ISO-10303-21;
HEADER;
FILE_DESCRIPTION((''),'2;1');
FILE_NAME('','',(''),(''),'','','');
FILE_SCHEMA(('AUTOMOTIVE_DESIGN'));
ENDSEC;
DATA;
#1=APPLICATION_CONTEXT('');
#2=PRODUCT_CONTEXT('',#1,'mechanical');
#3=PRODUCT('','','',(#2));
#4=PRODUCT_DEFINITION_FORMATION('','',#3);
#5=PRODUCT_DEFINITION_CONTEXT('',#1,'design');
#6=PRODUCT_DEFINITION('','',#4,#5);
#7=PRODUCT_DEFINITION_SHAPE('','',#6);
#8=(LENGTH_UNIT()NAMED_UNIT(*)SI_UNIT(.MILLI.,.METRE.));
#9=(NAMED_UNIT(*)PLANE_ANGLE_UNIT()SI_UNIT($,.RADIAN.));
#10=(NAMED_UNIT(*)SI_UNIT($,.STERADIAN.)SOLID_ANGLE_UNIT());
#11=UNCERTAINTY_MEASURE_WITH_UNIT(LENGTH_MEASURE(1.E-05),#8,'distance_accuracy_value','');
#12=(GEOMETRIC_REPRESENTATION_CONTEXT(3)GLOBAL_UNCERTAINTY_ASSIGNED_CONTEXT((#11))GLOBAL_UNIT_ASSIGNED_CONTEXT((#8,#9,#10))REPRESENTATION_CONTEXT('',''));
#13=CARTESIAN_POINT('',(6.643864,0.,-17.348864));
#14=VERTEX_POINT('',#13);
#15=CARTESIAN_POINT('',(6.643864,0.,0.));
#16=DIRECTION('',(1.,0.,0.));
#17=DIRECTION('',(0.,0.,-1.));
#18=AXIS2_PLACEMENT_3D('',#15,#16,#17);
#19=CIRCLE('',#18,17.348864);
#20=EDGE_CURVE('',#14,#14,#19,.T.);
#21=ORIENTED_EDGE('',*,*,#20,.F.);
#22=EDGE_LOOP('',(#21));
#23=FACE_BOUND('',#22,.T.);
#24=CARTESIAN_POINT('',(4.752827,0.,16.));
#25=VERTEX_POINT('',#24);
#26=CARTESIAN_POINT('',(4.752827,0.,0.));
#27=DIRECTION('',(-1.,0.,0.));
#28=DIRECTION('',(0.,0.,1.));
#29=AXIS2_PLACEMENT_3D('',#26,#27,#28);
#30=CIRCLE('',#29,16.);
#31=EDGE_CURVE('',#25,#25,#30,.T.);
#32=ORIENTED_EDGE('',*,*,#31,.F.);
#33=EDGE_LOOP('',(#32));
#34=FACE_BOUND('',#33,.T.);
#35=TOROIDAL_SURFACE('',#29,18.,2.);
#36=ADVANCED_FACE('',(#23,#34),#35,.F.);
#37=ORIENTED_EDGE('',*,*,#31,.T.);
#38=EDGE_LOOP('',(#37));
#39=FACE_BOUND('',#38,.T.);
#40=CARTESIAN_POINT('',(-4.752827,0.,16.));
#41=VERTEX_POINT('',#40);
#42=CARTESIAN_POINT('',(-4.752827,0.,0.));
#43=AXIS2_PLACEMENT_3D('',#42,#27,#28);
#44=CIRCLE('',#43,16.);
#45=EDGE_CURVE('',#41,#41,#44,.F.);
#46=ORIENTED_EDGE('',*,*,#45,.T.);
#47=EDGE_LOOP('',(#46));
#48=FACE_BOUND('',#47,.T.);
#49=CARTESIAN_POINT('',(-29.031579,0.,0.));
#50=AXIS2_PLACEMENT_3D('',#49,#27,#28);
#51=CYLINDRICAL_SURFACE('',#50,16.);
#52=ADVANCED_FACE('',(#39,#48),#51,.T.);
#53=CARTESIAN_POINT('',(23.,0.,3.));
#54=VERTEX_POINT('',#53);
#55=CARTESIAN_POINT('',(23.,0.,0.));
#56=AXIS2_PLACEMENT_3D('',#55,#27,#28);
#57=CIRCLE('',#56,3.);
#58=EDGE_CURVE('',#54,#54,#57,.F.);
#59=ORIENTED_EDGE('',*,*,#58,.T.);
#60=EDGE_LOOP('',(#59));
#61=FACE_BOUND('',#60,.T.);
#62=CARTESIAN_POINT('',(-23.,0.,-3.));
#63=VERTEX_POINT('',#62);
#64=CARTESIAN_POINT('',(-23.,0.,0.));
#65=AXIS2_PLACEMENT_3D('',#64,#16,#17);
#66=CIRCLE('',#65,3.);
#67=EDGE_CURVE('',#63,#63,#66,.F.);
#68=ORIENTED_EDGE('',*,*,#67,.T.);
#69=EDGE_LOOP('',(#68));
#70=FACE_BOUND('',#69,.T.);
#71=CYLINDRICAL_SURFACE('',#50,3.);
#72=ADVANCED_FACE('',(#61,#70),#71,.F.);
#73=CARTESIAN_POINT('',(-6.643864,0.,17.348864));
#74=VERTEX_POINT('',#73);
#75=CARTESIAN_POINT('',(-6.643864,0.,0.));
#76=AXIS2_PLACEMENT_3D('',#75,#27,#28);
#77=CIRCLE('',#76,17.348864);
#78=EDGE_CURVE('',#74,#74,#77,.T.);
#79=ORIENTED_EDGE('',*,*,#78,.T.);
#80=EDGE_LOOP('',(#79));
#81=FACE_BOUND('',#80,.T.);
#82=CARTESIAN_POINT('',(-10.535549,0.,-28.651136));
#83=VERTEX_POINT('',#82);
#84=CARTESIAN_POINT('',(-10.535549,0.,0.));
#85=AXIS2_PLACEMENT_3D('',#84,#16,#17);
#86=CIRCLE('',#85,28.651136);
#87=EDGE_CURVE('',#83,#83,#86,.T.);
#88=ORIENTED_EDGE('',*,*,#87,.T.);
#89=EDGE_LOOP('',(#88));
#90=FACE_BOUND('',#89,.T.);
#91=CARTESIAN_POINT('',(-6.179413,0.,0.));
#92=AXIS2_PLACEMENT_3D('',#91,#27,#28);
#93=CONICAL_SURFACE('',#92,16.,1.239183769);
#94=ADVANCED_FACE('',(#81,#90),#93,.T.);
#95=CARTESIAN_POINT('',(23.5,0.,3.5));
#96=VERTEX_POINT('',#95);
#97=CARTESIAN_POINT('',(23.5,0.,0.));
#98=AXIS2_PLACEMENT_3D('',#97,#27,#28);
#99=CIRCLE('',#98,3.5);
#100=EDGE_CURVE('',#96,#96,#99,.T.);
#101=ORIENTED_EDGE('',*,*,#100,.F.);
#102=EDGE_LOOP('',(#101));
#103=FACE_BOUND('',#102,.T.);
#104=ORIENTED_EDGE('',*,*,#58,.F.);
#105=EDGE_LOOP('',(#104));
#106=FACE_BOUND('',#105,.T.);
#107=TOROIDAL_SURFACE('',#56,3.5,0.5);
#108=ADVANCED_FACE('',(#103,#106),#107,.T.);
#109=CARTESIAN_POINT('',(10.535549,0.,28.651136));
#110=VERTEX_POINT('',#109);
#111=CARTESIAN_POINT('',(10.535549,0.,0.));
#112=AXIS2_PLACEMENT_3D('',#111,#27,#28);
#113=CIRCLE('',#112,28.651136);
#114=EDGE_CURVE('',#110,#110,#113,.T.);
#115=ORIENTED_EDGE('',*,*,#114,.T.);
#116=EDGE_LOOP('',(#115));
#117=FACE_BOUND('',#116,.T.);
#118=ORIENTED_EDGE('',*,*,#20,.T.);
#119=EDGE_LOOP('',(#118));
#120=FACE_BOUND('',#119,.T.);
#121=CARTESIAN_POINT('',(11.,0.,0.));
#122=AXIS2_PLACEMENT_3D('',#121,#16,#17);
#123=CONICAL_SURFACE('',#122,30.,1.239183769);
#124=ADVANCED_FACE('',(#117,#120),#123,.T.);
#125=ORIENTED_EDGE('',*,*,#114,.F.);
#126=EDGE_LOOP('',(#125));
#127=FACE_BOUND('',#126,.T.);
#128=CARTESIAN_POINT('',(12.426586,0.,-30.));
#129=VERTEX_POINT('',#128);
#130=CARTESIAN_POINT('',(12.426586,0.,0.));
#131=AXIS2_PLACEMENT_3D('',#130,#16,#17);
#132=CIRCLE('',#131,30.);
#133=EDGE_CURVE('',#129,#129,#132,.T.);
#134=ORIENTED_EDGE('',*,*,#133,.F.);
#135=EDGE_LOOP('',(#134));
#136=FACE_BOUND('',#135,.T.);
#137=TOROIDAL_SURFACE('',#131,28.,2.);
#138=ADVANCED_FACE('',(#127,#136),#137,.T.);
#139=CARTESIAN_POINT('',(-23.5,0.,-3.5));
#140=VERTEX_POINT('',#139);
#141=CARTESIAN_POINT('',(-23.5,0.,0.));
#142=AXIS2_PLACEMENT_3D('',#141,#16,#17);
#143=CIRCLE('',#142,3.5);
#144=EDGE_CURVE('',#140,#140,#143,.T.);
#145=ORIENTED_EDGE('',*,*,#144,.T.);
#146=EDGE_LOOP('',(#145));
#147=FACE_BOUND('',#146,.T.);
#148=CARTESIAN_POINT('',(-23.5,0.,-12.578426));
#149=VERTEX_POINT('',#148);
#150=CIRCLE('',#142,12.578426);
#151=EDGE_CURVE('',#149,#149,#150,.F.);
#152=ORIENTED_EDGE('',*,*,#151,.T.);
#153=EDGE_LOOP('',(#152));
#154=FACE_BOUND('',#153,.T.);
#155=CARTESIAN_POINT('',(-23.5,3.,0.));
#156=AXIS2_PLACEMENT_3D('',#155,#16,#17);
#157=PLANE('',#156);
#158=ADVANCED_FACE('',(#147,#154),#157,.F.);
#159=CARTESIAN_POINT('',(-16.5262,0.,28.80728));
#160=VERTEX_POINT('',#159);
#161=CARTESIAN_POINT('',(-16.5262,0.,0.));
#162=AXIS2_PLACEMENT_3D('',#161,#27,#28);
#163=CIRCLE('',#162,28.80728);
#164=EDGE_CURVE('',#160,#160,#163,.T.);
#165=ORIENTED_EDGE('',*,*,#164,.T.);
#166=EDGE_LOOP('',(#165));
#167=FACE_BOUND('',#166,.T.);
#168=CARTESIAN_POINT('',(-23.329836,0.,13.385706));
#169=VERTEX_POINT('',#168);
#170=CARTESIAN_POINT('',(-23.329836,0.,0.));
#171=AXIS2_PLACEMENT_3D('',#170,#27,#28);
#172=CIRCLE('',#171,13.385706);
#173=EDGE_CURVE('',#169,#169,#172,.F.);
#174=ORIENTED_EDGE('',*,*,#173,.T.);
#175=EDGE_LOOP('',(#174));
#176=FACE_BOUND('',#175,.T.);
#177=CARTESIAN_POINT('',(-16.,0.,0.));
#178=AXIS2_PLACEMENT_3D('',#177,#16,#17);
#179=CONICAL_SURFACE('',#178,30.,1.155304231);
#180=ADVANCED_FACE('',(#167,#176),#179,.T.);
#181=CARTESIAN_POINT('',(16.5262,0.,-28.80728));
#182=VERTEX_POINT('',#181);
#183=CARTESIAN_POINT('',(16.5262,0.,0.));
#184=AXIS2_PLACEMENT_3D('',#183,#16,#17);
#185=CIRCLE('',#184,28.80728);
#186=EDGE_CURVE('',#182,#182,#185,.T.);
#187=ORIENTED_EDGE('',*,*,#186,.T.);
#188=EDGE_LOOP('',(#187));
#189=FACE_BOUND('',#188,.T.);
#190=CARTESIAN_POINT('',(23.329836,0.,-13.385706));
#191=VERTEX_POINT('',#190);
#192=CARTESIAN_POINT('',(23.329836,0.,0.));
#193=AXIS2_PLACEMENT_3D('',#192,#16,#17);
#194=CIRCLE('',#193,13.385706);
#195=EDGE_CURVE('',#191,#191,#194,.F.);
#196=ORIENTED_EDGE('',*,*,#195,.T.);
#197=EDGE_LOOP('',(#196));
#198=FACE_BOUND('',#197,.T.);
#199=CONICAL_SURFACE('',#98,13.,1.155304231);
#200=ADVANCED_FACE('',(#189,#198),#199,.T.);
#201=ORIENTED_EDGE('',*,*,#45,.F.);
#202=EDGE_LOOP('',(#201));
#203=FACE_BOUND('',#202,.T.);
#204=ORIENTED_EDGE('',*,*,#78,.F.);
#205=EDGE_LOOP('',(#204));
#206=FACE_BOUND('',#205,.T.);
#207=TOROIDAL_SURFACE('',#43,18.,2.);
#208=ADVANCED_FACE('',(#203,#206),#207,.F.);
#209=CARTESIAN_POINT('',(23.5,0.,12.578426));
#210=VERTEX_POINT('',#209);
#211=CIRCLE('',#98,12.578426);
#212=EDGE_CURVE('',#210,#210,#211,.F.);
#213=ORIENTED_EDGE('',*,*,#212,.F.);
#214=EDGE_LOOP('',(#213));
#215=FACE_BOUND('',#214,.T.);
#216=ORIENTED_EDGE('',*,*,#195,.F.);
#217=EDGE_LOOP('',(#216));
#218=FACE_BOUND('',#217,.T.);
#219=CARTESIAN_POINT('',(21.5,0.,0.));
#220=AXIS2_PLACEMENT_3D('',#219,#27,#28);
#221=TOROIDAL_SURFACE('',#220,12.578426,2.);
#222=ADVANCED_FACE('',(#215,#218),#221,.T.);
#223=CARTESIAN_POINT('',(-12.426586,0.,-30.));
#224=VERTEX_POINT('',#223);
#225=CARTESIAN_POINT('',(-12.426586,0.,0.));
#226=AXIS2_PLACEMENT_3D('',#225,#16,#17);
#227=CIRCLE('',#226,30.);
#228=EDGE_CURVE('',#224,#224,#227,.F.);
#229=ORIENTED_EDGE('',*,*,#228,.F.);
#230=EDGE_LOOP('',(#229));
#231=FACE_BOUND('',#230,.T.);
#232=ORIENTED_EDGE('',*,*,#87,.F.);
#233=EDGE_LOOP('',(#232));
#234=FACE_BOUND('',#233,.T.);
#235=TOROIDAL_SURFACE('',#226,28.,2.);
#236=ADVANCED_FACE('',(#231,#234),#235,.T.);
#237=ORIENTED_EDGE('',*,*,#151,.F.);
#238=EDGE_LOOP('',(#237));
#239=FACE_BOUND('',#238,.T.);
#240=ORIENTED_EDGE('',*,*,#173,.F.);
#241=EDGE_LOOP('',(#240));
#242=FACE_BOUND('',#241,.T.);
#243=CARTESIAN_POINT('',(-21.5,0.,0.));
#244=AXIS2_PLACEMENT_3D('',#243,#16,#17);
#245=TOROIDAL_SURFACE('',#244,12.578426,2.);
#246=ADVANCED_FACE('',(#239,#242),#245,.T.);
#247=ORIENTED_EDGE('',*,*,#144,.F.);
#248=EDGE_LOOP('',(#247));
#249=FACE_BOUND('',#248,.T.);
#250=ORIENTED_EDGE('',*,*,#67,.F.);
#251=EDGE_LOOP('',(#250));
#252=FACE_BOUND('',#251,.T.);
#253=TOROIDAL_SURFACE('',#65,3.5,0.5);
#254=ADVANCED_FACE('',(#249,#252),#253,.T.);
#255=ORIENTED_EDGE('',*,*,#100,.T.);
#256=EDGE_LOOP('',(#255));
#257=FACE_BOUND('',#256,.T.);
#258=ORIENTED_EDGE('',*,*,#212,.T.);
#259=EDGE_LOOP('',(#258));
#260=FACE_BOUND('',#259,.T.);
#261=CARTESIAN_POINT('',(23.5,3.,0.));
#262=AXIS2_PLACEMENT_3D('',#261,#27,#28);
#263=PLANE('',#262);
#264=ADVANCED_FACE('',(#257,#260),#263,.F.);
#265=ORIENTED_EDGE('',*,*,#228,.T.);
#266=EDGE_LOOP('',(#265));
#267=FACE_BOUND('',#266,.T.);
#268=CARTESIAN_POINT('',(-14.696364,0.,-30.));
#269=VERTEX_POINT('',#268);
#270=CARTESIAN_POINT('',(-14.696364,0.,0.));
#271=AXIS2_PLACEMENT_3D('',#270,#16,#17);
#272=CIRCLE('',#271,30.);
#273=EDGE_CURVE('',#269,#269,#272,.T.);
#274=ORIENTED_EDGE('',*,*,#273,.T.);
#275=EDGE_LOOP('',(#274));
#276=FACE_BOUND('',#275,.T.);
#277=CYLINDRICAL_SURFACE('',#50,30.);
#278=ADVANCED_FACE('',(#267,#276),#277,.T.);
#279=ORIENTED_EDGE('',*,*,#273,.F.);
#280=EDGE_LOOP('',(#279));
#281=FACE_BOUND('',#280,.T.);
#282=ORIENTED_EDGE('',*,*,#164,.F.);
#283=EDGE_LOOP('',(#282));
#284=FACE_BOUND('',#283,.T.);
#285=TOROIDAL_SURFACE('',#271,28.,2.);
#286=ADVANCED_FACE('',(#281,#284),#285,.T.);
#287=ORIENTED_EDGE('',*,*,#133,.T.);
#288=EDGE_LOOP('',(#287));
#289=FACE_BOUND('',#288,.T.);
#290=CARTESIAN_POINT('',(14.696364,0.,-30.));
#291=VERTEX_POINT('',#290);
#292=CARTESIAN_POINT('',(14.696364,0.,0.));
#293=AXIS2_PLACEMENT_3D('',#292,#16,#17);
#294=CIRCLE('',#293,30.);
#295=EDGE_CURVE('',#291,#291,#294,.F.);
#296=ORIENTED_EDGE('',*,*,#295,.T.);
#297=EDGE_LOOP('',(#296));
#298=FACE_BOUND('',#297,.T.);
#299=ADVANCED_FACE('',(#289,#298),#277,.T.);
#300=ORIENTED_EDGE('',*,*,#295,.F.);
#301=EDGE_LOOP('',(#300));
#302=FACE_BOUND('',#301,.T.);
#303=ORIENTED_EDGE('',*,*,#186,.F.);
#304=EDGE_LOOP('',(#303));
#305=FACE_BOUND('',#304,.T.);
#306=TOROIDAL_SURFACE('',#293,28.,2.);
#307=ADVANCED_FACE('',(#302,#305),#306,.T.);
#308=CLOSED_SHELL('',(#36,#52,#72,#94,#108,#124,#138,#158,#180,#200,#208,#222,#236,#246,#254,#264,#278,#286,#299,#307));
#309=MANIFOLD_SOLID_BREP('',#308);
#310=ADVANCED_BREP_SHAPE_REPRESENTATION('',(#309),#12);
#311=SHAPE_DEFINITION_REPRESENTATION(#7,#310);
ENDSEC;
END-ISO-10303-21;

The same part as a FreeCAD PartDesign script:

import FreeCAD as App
import Part
import Sketcher
from FreeCAD import Vector
Q = App.Units.Quantity


def edges_at(feature, points):
    """Names of the edges that pass closest to the given points."""
    edges = feature.Shape.Edges
    near = lambda p: min(range(len(edges)), key=lambda i: edges[i].distToShape(Part.Vertex(*p))[0])
    return sorted({f"Edge{near(p) + 1}" for p in points})


def add_polygon(sketch, points):
    """Adds a closed chain of lines whose ends are joined by coincident constraints."""
    first, n = sketch.GeometryCount, len(points)
    for a, b in zip(points, points[1:] + points[:1]):
        sketch.addGeometry(Part.LineSegment(App.Vector(*a, 0), App.Vector(*b, 0)), False)
    for i in range(n):
        sketch.addConstraint(Sketcher.Constraint("Coincident", first + i, 2, first + (i + 1) % n, 1))

doc = App.newDocument("Part")
body = doc.addObject("PartDesign::Body", "Body")

sketch1 = doc.addObject("Sketcher::SketchObject", "Sketch")
body.addObject(sketch1)
sketch1.AttachmentSupport = (doc.XY_Plane, [""])
sketch1.MapMode = "FlatFace"
add_polygon(sketch1, [(-11, 30), (-16, 30), (-24, 13), (-24, 3), (24, 3), (24, 13), (16, 30), (11, 30), (6, 16), (-6, 16)])
sketch1.addConstraint([
    Sketcher.Constraint("Horizontal", 0),
    Sketcher.Constraint("Vertical", 2),
    Sketcher.Constraint("Horizontal", 3),
    Sketcher.Constraint("Vertical", 4),
    Sketcher.Constraint("Horizontal", 6),
    Sketcher.Constraint("Horizontal", 8),
    Sketcher.Constraint("Symmetric", 1, 2, 4, 2, -2),
    Sketcher.Constraint("Symmetric", 0, 2, 5, 2, -2),
    Sketcher.Constraint("Equal", 0, 6),
    Sketcher.Constraint("Equal", 7, 9),
    Sketcher.Constraint("DistanceX", 0, 2, 0, 1, Q("5 mm")),
    Sketcher.Constraint("DistanceX", 3, 1, 3, 2, Q("47 mm")),
    Sketcher.Constraint("DistanceY", 2, 2, 2, 1, Q("10 mm")),
    Sketcher.Constraint("Angle", 7, Q("-109 deg")),
    Sketcher.Constraint("DistanceX", 0, 2, -1, 1, Q("16 mm")),
    Sketcher.Constraint("DistanceY", -1, 1, 0, 2, Q("30 mm")),
    Sketcher.Constraint("DistanceY", -1, 1, 1, 2, Q("13 mm")),
    Sketcher.Constraint("DistanceY", -1, 1, 7, 2, Q("16 mm")),
])
revolution = doc.addObject("PartDesign::Revolution", "Revolution")
body.addObject(revolution)
revolution.Profile = sketch1
revolution.ReferenceAxis = (sketch1, ["H_Axis"])
revolution.Angle = 360
doc.recompute()

fillet = doc.addObject("PartDesign::Fillet", "Fillet")
body.addObject(fillet)
fillet.Base = (revolution, edges_at(revolution, [
    (-16, 0, -30),
    (-23.5, 0, -13),
    (23.5, 0, -13),
    (16, 0, -30),
    (11, 0, -30),
    (6.179, 0, -16),
    (-6.179, 0, -16),
    (-11, 0, -30),
]))
fillet.Radius = 2
doc.recompute()

fillet2 = doc.addObject("PartDesign::Fillet", "Fillet001")
body.addObject(fillet2)
fillet2.Base = (fillet, edges_at(fillet, [(-23.5, 0, -3), (23.5, 0, -3)]))
fillet2.Radius = 0.5

doc.recompute()
